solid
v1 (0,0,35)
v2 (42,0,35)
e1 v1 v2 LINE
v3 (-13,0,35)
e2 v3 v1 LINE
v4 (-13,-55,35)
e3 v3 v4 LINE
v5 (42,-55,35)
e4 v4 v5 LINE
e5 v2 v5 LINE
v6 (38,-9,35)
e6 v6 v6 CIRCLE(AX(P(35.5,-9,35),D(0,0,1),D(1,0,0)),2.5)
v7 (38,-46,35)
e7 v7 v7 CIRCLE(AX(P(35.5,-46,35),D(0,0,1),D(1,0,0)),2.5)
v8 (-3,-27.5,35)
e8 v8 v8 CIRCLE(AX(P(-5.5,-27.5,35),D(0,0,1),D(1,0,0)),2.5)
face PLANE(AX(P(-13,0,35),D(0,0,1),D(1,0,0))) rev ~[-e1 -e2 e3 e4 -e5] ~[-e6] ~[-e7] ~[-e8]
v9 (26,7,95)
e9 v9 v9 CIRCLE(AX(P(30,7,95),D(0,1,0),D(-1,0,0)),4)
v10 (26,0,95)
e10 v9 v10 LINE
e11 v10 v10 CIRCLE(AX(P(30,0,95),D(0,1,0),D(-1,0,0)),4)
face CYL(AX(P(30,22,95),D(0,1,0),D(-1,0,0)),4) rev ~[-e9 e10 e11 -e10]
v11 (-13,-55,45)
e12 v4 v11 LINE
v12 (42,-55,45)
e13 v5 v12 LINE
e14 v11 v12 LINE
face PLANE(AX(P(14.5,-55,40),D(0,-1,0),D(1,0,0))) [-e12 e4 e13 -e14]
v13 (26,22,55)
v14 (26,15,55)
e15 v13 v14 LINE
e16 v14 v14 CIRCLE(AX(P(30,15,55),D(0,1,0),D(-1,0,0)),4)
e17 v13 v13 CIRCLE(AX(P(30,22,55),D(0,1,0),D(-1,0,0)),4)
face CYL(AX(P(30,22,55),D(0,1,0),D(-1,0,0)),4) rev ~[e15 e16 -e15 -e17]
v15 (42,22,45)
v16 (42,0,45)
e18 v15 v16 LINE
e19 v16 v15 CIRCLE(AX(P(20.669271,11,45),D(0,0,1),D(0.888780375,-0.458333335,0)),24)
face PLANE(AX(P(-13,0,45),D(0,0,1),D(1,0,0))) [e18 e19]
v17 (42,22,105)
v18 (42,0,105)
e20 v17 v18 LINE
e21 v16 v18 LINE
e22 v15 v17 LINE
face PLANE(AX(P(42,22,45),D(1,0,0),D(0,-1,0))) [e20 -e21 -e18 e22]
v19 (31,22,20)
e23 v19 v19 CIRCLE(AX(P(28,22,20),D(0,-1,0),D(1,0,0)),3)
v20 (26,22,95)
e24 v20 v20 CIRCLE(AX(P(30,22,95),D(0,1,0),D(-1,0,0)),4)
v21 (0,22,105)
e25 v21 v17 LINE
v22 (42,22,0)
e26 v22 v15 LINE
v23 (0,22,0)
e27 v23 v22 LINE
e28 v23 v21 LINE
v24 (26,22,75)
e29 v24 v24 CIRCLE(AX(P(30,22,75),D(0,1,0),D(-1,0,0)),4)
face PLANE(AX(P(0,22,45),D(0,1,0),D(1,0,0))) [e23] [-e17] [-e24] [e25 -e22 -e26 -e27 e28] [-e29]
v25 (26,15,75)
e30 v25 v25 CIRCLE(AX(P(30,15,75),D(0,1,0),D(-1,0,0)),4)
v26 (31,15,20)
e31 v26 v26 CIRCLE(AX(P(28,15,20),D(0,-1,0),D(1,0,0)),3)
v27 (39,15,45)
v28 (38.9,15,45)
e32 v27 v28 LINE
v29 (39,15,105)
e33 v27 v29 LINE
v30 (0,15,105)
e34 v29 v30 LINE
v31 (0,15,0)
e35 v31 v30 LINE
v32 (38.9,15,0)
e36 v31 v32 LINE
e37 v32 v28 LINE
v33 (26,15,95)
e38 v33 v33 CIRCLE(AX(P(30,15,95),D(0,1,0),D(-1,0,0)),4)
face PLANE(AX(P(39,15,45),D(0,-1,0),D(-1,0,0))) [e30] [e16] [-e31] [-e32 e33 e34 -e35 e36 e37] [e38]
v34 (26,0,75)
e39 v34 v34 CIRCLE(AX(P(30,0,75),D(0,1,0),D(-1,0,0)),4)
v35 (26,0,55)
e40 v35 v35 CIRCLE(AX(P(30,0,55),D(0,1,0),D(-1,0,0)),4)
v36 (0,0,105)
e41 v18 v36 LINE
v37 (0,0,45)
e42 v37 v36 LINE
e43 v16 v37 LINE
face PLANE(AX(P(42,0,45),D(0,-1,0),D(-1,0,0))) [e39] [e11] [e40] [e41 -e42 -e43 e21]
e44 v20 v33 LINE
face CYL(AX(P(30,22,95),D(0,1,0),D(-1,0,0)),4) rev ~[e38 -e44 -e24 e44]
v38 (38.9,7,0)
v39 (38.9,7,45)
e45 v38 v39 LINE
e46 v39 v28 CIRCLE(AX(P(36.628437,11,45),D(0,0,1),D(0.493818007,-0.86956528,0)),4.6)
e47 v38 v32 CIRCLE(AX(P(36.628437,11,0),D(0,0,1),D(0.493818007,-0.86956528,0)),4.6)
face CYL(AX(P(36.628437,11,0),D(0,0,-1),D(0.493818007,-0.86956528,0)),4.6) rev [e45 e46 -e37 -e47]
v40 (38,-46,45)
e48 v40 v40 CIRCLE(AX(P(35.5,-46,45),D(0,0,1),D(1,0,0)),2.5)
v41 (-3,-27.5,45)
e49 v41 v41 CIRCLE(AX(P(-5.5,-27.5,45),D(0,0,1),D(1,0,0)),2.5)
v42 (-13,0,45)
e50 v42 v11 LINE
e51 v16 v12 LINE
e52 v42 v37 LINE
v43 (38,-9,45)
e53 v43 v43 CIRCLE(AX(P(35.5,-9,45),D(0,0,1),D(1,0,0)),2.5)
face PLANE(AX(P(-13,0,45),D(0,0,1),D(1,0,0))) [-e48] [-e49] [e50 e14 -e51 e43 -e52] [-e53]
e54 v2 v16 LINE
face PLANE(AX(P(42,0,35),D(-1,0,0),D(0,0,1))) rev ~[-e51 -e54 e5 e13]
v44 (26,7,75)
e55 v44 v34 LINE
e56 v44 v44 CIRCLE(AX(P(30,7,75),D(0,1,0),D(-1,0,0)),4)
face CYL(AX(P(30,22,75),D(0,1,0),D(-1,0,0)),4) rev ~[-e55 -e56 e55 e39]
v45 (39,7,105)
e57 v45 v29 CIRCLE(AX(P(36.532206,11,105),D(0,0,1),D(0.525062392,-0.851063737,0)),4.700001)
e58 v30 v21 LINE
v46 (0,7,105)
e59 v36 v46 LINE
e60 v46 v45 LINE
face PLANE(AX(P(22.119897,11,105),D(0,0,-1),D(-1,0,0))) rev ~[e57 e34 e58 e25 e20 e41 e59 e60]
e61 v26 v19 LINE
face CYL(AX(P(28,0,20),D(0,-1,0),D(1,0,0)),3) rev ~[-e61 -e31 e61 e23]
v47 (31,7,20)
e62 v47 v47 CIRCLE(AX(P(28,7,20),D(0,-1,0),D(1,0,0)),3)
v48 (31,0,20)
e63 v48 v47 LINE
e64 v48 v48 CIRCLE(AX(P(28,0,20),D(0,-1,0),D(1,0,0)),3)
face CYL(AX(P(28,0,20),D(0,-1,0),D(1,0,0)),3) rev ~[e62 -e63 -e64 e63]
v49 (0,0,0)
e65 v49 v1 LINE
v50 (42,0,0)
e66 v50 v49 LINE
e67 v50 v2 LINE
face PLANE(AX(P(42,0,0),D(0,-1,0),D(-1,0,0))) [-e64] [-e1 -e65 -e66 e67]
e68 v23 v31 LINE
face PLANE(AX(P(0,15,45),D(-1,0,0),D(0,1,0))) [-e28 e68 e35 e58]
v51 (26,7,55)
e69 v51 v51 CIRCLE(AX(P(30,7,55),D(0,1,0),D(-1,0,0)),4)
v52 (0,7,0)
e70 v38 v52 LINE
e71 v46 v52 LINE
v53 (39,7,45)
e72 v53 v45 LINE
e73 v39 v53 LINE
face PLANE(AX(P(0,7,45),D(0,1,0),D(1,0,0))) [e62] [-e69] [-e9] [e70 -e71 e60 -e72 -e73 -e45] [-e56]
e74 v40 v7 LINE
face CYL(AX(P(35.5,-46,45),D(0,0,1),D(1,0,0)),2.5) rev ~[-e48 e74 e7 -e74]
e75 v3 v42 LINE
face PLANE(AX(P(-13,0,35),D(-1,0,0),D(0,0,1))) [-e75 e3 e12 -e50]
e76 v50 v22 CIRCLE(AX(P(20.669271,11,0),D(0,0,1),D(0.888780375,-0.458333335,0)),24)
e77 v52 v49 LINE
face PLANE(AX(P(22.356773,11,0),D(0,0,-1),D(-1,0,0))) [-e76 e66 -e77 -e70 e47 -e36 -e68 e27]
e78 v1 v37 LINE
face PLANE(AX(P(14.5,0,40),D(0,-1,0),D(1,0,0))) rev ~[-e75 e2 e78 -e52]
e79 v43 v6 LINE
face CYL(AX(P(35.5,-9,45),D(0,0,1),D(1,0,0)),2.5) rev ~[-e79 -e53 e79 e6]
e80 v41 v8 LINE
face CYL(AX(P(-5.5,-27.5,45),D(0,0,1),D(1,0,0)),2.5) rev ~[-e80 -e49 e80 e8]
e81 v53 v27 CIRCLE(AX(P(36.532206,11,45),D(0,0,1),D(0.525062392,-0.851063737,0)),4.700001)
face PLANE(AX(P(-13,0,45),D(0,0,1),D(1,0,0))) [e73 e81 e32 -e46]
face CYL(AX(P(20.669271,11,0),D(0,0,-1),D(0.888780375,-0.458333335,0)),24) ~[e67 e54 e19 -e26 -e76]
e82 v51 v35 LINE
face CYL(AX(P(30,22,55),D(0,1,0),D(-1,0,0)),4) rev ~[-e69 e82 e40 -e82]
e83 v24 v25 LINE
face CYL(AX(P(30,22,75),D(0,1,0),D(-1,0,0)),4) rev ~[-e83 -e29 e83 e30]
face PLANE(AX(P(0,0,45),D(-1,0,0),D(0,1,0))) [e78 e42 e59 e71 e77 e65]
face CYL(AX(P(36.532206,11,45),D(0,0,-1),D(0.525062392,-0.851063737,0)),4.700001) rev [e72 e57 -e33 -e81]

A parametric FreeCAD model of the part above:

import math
import FreeCAD as App
import Part
import Sketcher
from FreeCAD import Vector


def add_polygon(sketch, points):
    """Adds a closed chain of lines whose ends are joined by coincident constraints."""
    first, n = sketch.GeometryCount, len(points)
    for a, b in zip(points, points[1:] + points[:1]):
        sketch.addGeometry(Part.LineSegment(App.Vector(*a, 0), App.Vector(*b, 0)), False)
    for i in range(n):
        sketch.addConstraint(Sketcher.Constraint("Coincident", first + i, 2, first + (i + 1) % n, 1))

doc = App.newDocument("Part")
body = doc.addObject("PartDesign::Body", "Body")

sketch1 = doc.addObject("Sketcher::SketchObject", "Sketch")
body.addObject(sketch1)
sketch1.AttachmentSupport = (doc.XY_Plane, [""])
sketch1.MapMode = "FlatFace"
sketch1.addGeometry([
    Part.LineSegment(Vector(42, 22, 0), Vector(0, 22, 0)),
    Part.LineSegment(Vector(0, 22, 0), Vector(0, 15, 0)),
    Part.LineSegment(Vector(0, 15, 0), Vector(38.9, 15, 0)),
    Part.ArcOfCircle(Part.Circle(Vector(36.6, 11, 0), Vector(0, 0, 1), 4.6), math.radians(-60), math.radians(60)),
    Part.LineSegment(Vector(38.9, 7, 0), Vector(0, 7, 0)),
    Part.LineSegment(Vector(0, 7, 0), Vector(0, 0, 0)),
    Part.LineSegment(Vector(0, 0, 0), Vector(42, 0, 0)),
    Part.ArcOfCircle(Part.Circle(Vector(20.7, 11, 0), Vector(0, 0, 1), 24), math.radians(-27), math.radians(27)),
], False)
sketch1.addConstraint([
    Sketcher.Constraint("Coincident", 0, 2, 1, 1),
    Sketcher.Constraint("Coincident", 1, 2, 2, 1),
    Sketcher.Constraint("Coincident", 2, 2, 3, 2),
    Sketcher.Constraint("Coincident", 3, 1, 4, 1),
    Sketcher.Constraint("Coincident", 4, 2, 5, 1),
    Sketcher.Constraint("Coincident", 5, 2, 6, 1),
    Sketcher.Constraint("Coincident", 6, 2, 7, 1),
    Sketcher.Constraint("Coincident", 7, 2, 0, 1),
    Sketcher.Constraint("Horizontal", 0),
    Sketcher.Constraint("Vertical", 1),
    Sketcher.Constraint("Horizontal", 2),
    Sketcher.Constraint("Horizontal", 4),
    Sketcher.Constraint("Vertical", 5),
    Sketcher.Constraint("Horizontal", 6),
    Sketcher.Constraint("Coincident", 5, 2, -1, 1),
    Sketcher.Constraint("PointOnObject", 0, 2, -2),
    Sketcher.Constraint("Horizontal", 3, 3, 7, 3),
    Sketcher.Constraint("Vertical", 2, 2, 3, 1),
    Sketcher.Constraint("Vertical", 6, 2, 7, 2),
    Sketcher.Constraint("Radius", 7, 24.0),
    Sketcher.Constraint("Radius", 3, 4.6),
    Sketcher.Constraint("DistanceX", 0, 2, 0, 1, 42.0),
    Sketcher.Constraint("DistanceY", 1, 2, 1, 1, 7.0),
    Sketcher.Constraint("DistanceX", 2, 1, 2, 2, 38.9),
    Sketcher.Constraint("DistanceY", -1, 1, 3, 3, 11.0),
])
pad1 = doc.addObject("PartDesign::Pad", "Pad")
body.addObject(pad1)
pad1.Profile = sketch1
pad1.Length = 45

sketch2 = doc.addObject("Sketcher::SketchObject", "Sketch001")
body.addObject(sketch2)
sketch2.AttachmentSupport = (doc.XZ_Plane, [""])
sketch2.MapMode = "FlatFace"
add_polygon(sketch2, [(-13, 45), (-13, 35), (42, 35), (42, 45)])
sketch2.addConstraint([
    Sketcher.Constraint("Vertical", 0),
    Sketcher.Constraint("Horizontal", 1),
    Sketcher.Constraint("Vertical", 2),
    Sketcher.Constraint("Horizontal", 3),
    Sketcher.Constraint("DistanceX", 1, 1, 1, 2, 55.0),
    Sketcher.Constraint("DistanceY", 0, 2, 0, 1, 10.0),
    Sketcher.Constraint("DistanceX", 0, 2, -1, 1, 13.0),
    Sketcher.Constraint("DistanceY", -1, 1, 0, 2, 35.0),
])
pad2 = doc.addObject("PartDesign::Pad", "Pad001")
body.addObject(pad2)
pad2.Profile = sketch2
pad2.Length = 55

sketch3 = doc.addObject("Sketcher::SketchObject", "Sketch002")
body.addObject(sketch3)
sketch3.AttachmentSupport = (doc.XZ_Plane, [""])
sketch3.MapMode = "FlatFace"
sketch3.addGeometry(Part.Circle(Vector(28, 20, 0), Vector(0, 0, 1), 3), False)
sketch3.addConstraint([
    Sketcher.Constraint("Diameter", 0, 6.0),
    Sketcher.Constraint("DistanceX", -1, 1, 0, 3, 28.0),
    Sketcher.Constraint("DistanceY", -1, 1, 0, 3, 20.0),
])
pocket1 = doc.addObject("PartDesign::Pocket", "Pocket")
body.addObject(pocket1)
pocket1.Profile = sketch3
pocket1.Length = 22

sketch4 = doc.addObject("Sketcher::SketchObject", "Sketch003")
body.addObject(sketch4)
sketch4.AttachmentSupport = (doc.XY_Plane, [""])
sketch4.MapMode = "FlatFace"
sketch4.AttachmentOffset = App.Placement(Vector(0, 0, 45), App.Rotation())
sketch4.addGeometry([
    Part.Circle(Vector(35.5, -9, 0), Vector(0, 0, 1), 2.5),
    Part.Circle(Vector(35.5, -46, 0), Vector(0, 0, 1), 2.5),
    Part.Circle(Vector(-5.5, -27.5, 0), Vector(0, 0, 1), 2.5),
], False)
sketch4.addConstraint([
    Sketcher.Constraint("Equal", 0, 1),
    Sketcher.Constraint("Equal", 1, 2),
    Sketcher.Constraint("Vertical", 0, 3, 1, 3),
    Sketcher.Constraint("Diameter", 0, 5.0),
    Sketcher.Constraint("DistanceY", 0, 3, -1, 1, 9.0),
    Sketcher.Constraint("DistanceY", 1, 3, -1, 1, 46.0),
    Sketcher.Constraint("DistanceX", 2, 3, 0, 3, 41.0),
    Sketcher.Constraint("DistanceX", -1, 1, 0, 3, 35.5),
    Sketcher.Constraint("DistanceY", 2, 3, -1, 1, 27.5),
])
pocket2 = doc.addObject("PartDesign::Pocket", "Pocket001")
body.addObject(pocket2)
pocket2.Profile = sketch4
pocket2.Length = 10

sketch5 = doc.addObject("Sketcher::SketchObject", "Sketch004")
body.addObject(sketch5)
sketch5.AttachmentSupport = (doc.XY_Plane, [""])
sketch5.MapMode = "FlatFace"
sketch5.AttachmentOffset = App.Placement(Vector(0, 0, 45), App.Rotation())
sketch5.addGeometry([
    Part.LineSegment(Vector(42, 22, 0), Vector(0, 22, 0)),
    Part.LineSegment(Vector(0, 22, 0), Vector(0, 15, 0)),
    Part.LineSegment(Vector(0, 15, 0), Vector(39, 15, 0)),
    Part.ArcOfCircle(Part.Circle(Vector(36.5, 11, 0), Vector(0, 0, 1), 4.7), math.radians(-58), math.radians(58)),
    Part.LineSegment(Vector(39, 7, 0), Vector(0, 7, 0)),
    Part.LineSegment(Vector(0, 7, 0), Vector(0, 0, 0)),
    Part.LineSegment(Vector(0, 0, 0), Vector(42, 0, 0)),
    Part.LineSegment(Vector(42, 0, 0), Vector(42, 22, 0)),
], False)
sketch5.addConstraint([
    Sketcher.Constraint("Coincident", 0, 2, 1, 1),
    Sketcher.Constraint("Coincident", 1, 2, 2, 1),
    Sketcher.Constraint("Coincident", 2, 2, 3, 2),
    Sketcher.Constraint("Coincident", 3, 1, 4, 1),
    Sketcher.Constraint("Coincident", 4, 2, 5, 1),
    Sketcher.Constraint("Coincident", 5, 2, 6, 1),
    Sketcher.Constraint("Coincident", 6, 2, 7, 1),
    Sketcher.Constraint("Coincident", 7, 2, 0, 1),
    Sketcher.Constraint("Horizontal", 0),
    Sketcher.Constraint("Vertical", 1),
    Sketcher.Constraint("Horizontal", 2),
    Sketcher.Constraint("Horizontal", 4),
    Sketcher.Constraint("Vertical", 5),
    Sketcher.Constraint("Horizontal", 6),
    Sketcher.Constraint("Vertical", 7),
    Sketcher.Constraint("Coincident", 5, 2, -1, 1),
    Sketcher.Constraint("PointOnObject", 0, 2, -2),
    Sketcher.Constraint("Vertical", 2, 2, 3, 1),
    Sketcher.Constraint("Equal", 1, 5),
    Sketcher.Constraint("Radius", 3, 4.700001),
    Sketcher.Constraint("DistanceX", 0, 2, 0, 1, 42.0),
    Sketcher.Constraint("DistanceX", 2, 1, 2, 2, 39.0),
    Sketcher.Constraint("DistanceY", 1, 2, 1, 1, 7.0),
    Sketcher.Constraint("DistanceY", 7, 1, 7, 2, 22.0),
])
pad3 = doc.addObject("PartDesign::Pad", "Pad002")
body.addObject(pad3)
pad3.Profile = sketch5
pad3.Length = 60

sketch6 = doc.addObject("Sketcher::SketchObject", "Sketch005")
body.addObject(sketch6)
sketch6.AttachmentSupport = (doc.XZ_Plane, [""])
sketch6.MapMode = "FlatFace"
sketch6.AttachmentOffset = App.Placement(Vector(0, 0, -22), App.Rotation())
sketch6.addGeometry([
    Part.Circle(Vector(30, 55, 0), Vector(0, 0, 1), 4),
    Part.Circle(Vector(30, 75, 0), Vector(0, 0, 1), 4),
    Part.Circle(Vector(30, 95, 0), Vector(0, 0, 1), 4),
], False)
sketch6.addConstraint([
    Sketcher.Constraint("Equal", 0, 1),
    Sketcher.Constraint("Equal", 1, 2),
    Sketcher.Constraint("Vertical", 0, 3, 1, 3),
    Sketcher.Constraint("Vertical", 1, 3, 2, 3),
    Sketcher.Constraint("Diameter", 0, 8.0),
    Sketcher.Constraint("DistanceX", -1, 1, 0, 3, 30.0),
    Sketcher.Constraint("DistanceY", -1, 1, 0, 3, 55.0),
    Sketcher.Constraint("DistanceY", -1, 1, 1, 3, 75.0),
    Sketcher.Constraint("DistanceY", -1, 1, 2, 3, 95.0),
])
pocket3 = doc.addObject("PartDesign::Pocket", "Pocket002")
body.addObject(pocket3)
pocket3.Profile = sketch6
pocket3.Length = 22
pocket3.Reversed = True

doc.recompute()
